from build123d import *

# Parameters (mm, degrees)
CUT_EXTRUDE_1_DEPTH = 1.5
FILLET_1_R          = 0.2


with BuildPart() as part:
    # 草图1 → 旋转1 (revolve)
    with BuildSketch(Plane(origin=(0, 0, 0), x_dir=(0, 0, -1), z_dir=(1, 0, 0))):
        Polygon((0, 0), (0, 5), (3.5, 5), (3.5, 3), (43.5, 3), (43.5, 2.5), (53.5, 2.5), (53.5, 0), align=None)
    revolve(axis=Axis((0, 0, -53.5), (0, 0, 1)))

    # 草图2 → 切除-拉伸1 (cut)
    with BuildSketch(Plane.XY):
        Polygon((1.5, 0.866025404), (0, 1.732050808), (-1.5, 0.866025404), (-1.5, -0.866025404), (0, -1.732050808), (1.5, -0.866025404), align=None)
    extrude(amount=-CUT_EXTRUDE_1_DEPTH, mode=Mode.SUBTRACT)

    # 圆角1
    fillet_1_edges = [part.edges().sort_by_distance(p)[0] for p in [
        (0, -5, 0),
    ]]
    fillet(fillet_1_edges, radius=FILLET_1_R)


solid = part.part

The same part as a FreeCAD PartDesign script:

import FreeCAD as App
import Part
import Sketcher
Q = App.Units.Quantity


def edges_at(feature, points):
    """Names of the edges that pass closest to the given points."""
    edges = feature.Shape.Edges
    near = lambda p: min(range(len(edges)), key=lambda i: edges[i].distToShape(Part.Vertex(*p))[0])
    return sorted({f"Edge{near(p) + 1}" for p in points})

doc = App.newDocument("Part")
params = doc.addObject("Spreadsheet::Sheet", "Params")
for row, (alias, value) in enumerate([
    ("sketch1_width", "5 mm"),
    ("sketch1_width2", "2 mm"),
    ("sketch1_height", "10 mm"),
    ("sketch1_height2", "40 mm"),
    ("sketch1_width3", "2.5 mm"),
    ("revolution_angle", "360 deg"),
    ("pocket1_length", "1.5 mm"),
    ("fillet_radius", "0.2 mm"),
], start=1):
    params.set(f"A{row}", alias)
    params.set(f"B{row}", "=" + value)
    params.setAlias(f"B{row}", alias)

body = doc.addObject("PartDesign::Body", "Body")

sketch1 = body.newObject("Sketcher::SketchObject", "Sketch")
sketch1.AttachmentSupport = (doc.getObject("YZ_Plane"), [""])
sketch1.MapMode = "FlatFace"
sketch1.addGeometry(Part.LineSegment(App.Vector(5, 0, 0), App.Vector(0, 0, 0)), False)
sketch1.addGeometry(Part.LineSegment(App.Vector(0, 0, 0), App.Vector(0, -53.5, 0)), False)
sketch1.addGeometry(Part.LineSegment(App.Vector(0, -53.5, 0), App.Vector(2.5, -53.5, 0)), False)
sketch1.addGeometry(Part.LineSegment(App.Vector(2.5, -53.5, 0), App.Vector(2.5, -43.5, 0)), False)
sketch1.addGeometry(Part.LineSegment(App.Vector(2.5, -43.5, 0), App.Vector(3, -43.5, 0)), False)
sketch1.addGeometry(Part.LineSegment(App.Vector(3, -43.5, 0), App.Vector(3, -3.5, 0)), False)
sketch1.addGeometry(Part.LineSegment(App.Vector(3, -3.5, 0), App.Vector(5, -3.5, 0)), False)
sketch1.addGeometry(Part.LineSegment(App.Vector(5, -3.5, 0), App.Vector(5, 0, 0)), False)
sketch1.addConstraint(Sketcher.Constraint("Coincident", 0, 2, 1, 1))
sketch1.addConstraint(Sketcher.Constraint("Coincident", 1, 2, 2, 1))
sketch1.addConstraint(Sketcher.Constraint("Coincident", 2, 2, 3, 1))
sketch1.addConstraint(Sketcher.Constraint("Coincident", 3, 2, 4, 1))
sketch1.addConstraint(Sketcher.Constraint("Coincident", 4, 2, 5, 1))
sketch1.addConstraint(Sketcher.Constraint("Coincident", 5, 2, 6, 1))
sketch1.addConstraint(Sketcher.Constraint("Coincident", 6, 2, 7, 1))
sketch1.addConstraint(Sketcher.Constraint("Coincident", 7, 2, 0, 1))
sketch1.addConstraint(Sketcher.Constraint("Horizontal", 0))
sketch1.addConstraint(Sketcher.Constraint("Vertical", 1))
sketch1.addConstraint(Sketcher.Constraint("Horizontal", 2))
sketch1.addConstraint(Sketcher.Constraint("Vertical", 3))
sketch1.addConstraint(Sketcher.Constraint("Horizontal", 4))
sketch1.addConstraint(Sketcher.Constraint("Vertical", 5))
sketch1.addConstraint(Sketcher.Constraint("Horizontal", 6))
sketch1.addConstraint(Sketcher.Constraint("Vertical", 7))
sketch1.addConstraint(Sketcher.Constraint("Coincident", 0, 2, -1, 1))
sketch1.addConstraint(Sketcher.Constraint("DistanceX", 0, 2, 0, 1, Q("5 mm")))
sketch1.addConstraint(Sketcher.Constraint("DistanceX", 6, 1, 6, 2, Q("2 mm")))
sketch1.addConstraint(Sketcher.Constraint("DistanceY", 3, 1, 3, 2, Q("10 mm")))
sketch1.addConstraint(Sketcher.Constraint("DistanceY", 5, 1, 5, 2, Q("40 mm")))
sketch1.addConstraint(Sketcher.Constraint("DistanceX", 2, 1, 2, 2, Q("2.5 mm")))
sketch1.addConstraint(Sketcher.Constraint("DistanceY", 1, 2, 1, 1, Q("53.5 mm")))
sketch1.setExpression("Constraints[17]", "Params.sketch1_width")
sketch1.setExpression("Constraints[18]", "Params.sketch1_width2")
sketch1.setExpression("Constraints[19]", "Params.sketch1_height")
sketch1.setExpression("Constraints[20]", "Params.sketch1_height2")
sketch1.setExpression("Constraints[21]", "Params.sketch1_width3")
revolution = body.newObject("PartDesign::Revolution", "Revolution")
revolution.Profile = sketch1
revolution.ReferenceAxis = (sketch1, ["V_Axis"])
revolution.setExpression("Angle", "Params.revolution_angle")

sketch2 = body.newObject("Sketcher::SketchObject", "Sketch001")
sketch2.AttachmentSupport = (doc.getObject("XY_Plane"), [""])
sketch2.MapMode = "FlatFace"
sketch2.addGeometry(Part.LineSegment(App.Vector(1.5, 0.9, 0), App.Vector(0, 1.7, 0)), False)
sketch2.addGeometry(Part.LineSegment(App.Vector(0, 1.7, 0), App.Vector(-1.5, 0.9, 0)), False)
sketch2.addGeometry(Part.LineSegment(App.Vector(-1.5, 0.9, 0), App.Vector(-1.5, -0.9, 0)), False)
sketch2.addGeometry(Part.LineSegment(App.Vector(-1.5, -0.9, 0), App.Vector(0, -1.7, 0)), False)
sketch2.addGeometry(Part.LineSegment(App.Vector(0, -1.7, 0), App.Vector(1.5, -0.9, 0)), False)
sketch2.addGeometry(Part.LineSegment(App.Vector(1.5, -0.9, 0), App.Vector(1.5, 0.9, 0)), False)
sketch2.addConstraint(Sketcher.Constraint("Coincident", 0, 2, 1, 1))
sketch2.addConstraint(Sketcher.Constraint("Coincident", 1, 2, 2, 1))
sketch2.addConstraint(Sketcher.Constraint("Coincident", 2, 2, 3, 1))
sketch2.addConstraint(Sketcher.Constraint("Coincident", 3, 2, 4, 1))
sketch2.addConstraint(Sketcher.Constraint("Coincident", 4, 2, 5, 1))
sketch2.addConstraint(Sketcher.Constraint("Coincident", 5, 2, 0, 1))
sketch2.addConstraint(Sketcher.Constraint("Vertical", 2))
sketch2.addConstraint(Sketcher.Constraint("Vertical", 5))
sketch2.addConstraint(Sketcher.Constraint("Symmetric", 0, 2, 3, 2, -1, 1))
sketch2.addConstraint(Sketcher.Constraint("Symmetric", 1, 2, 4, 2, -1, 1))
sketch2.addConstraint(Sketcher.Constraint("PointOnObject", 0, 2, -2))
sketch2.addConstraint(Sketcher.Constraint("Parallel", 0, 3))
sketch2.addConstraint(Sketcher.Constraint("Horizontal", 2, 2, 4, 2))
sketch2.addConstraint(Sketcher.Constraint("Angle", 0, Q("150 deg")))
sketch2.addConstraint(Sketcher.Constraint("DistanceX", 2, 2, 4, 2, Q("3 mm")))
sketch2.addConstraint(Sketcher.Constraint("DistanceY", 2, 2, 2, 1, Q("1.732051 mm")))
pocket1 = body.newObject("PartDesign::Pocket", "Pocket")
pocket1.Profile = sketch2
pocket1.setExpression("Length", "Params.pocket1_length")
doc.recompute()

fillet = body.newObject("PartDesign::Fillet", "Fillet")
fillet.Base = (pocket1, edges_at(pocket1, [(0, -5, 0)]))
fillet.setExpression("Radius", "Params.fillet_radius")

doc.recompute()
